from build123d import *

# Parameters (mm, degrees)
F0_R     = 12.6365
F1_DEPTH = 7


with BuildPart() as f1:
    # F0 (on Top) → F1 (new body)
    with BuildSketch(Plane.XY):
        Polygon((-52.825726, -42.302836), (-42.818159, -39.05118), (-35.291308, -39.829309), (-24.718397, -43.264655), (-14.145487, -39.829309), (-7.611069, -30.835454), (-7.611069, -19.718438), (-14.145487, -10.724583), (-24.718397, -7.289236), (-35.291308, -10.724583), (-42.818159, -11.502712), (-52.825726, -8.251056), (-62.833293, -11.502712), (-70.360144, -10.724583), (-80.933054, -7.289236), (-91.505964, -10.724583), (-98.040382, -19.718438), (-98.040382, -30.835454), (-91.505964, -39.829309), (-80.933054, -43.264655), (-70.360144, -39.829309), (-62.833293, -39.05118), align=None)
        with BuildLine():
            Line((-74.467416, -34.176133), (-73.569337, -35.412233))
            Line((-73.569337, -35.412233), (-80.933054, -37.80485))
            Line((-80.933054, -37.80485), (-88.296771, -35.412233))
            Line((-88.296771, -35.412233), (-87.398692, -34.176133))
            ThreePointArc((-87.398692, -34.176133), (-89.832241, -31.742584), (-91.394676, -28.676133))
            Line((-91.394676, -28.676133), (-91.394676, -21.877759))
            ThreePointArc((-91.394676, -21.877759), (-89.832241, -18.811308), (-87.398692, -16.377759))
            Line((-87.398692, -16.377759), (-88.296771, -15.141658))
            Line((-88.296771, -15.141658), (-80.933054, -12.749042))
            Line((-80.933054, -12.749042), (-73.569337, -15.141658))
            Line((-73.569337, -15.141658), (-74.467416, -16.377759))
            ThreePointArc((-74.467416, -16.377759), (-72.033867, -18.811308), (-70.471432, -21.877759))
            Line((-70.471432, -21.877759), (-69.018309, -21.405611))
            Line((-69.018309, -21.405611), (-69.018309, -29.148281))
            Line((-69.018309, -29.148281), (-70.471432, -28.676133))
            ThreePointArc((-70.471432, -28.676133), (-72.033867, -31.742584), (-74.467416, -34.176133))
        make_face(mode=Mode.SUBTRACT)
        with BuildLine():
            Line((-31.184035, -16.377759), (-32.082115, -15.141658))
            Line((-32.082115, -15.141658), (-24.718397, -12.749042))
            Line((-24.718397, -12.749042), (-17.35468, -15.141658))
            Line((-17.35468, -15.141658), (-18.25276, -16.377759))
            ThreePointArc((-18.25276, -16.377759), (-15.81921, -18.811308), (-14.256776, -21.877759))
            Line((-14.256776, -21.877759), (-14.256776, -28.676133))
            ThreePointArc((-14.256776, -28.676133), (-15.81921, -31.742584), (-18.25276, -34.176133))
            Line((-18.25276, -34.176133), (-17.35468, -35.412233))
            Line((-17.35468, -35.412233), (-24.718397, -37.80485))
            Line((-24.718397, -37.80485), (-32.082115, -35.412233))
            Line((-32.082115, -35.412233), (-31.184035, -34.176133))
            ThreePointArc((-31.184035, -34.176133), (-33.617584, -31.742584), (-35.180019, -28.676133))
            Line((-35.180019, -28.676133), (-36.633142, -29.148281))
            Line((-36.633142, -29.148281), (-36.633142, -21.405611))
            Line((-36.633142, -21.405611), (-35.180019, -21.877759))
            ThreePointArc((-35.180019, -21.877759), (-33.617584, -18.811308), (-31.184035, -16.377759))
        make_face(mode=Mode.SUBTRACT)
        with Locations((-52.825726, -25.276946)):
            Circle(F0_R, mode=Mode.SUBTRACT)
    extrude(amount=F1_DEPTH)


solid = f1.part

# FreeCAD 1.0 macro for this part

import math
import FreeCAD as App
import Part
import Sketcher
from FreeCAD import Vector
Q = App.Units.Quantity


def add_polygon(sketch, points):
    """Adds a closed chain of lines whose ends are joined by coincident constraints."""
    first, n = sketch.GeometryCount, len(points)
    for a, b in zip(points, points[1:] + points[:1]):
        sketch.addGeometry(Part.LineSegment(App.Vector(*a, 0), App.Vector(*b, 0)), False)
    for i in range(n):
        sketch.addConstraint(Sketcher.Constraint("Coincident", first + i, 2, first + (i + 1) % n, 1))

doc = App.newDocument("Part")
body = doc.addObject("PartDesign::Body", "Body")

# Sketch on XY plane
sketch1 = body.newObject("Sketcher::SketchObject", "Sketch")
sketch1.AttachmentSupport = (doc.getObject("XY_Plane"), [""])
sketch1.MapMode = "FlatFace"
add_polygon(sketch1, [(-52.825726, -42.302836), (-42.818159, -39.05118), (-35.291308, -39.829309), (-24.718397, -43.264655), (-14.145487, -39.829309), (-7.611069, -30.835454), (-7.611069, -19.718438), (-14.145487, -10.724583), (-24.718397, -7.289236), (-35.291308, -10.724583), (-42.818159, -11.502712), (-52.825726, -8.251056), (-62.833293, -11.502712), (-70.360144, -10.724583), (-80.933054, -7.289236), (-91.505964, -10.724583), (-98.040382, -19.718438), (-98.040382, -30.835454), (-91.505964, -39.829309), (-80.933054, -43.264655), (-70.360144, -39.829309), (-62.833293, -39.05118)])  # lines 0-21
sketch1.addGeometry(Part.ArcOfCircle(Part.Circle(Vector(-80.933055, -25.276945, 0), Vector(0, 0, 1), 11.000002), math.radians(-53.999998), math.radians(-18.000003)), False)  # 22
sketch1.addGeometry(Part.LineSegment(Vector(-74.467416, -34.176133, 0), Vector(-73.569337, -35.412233, 0)), False)  # 23
sketch1.addGeometry(Part.LineSegment(Vector(-73.569337, -35.412233, 0), Vector(-80.933054, -37.80485, 0)), False)  # 24
sketch1.addGeometry(Part.LineSegment(Vector(-80.933054, -37.80485, 0), Vector(-88.296771, -35.412233, 0)), False)  # 25
sketch1.addGeometry(Part.LineSegment(Vector(-88.296771, -35.412233, 0), Vector(-87.398692, -34.176133, 0)), False)  # 26
sketch1.addGeometry(Part.ArcOfCircle(Part.Circle(Vector(-80.933053, -25.276945, 0), Vector(0, 0, 1), 11.000002), math.radians(-161.999997), math.radians(-126.000002)), False)  # 27
sketch1.addGeometry(Part.LineSegment(Vector(-91.394676, -28.676133, 0), Vector(-91.394676, -21.877759, 0)), False)  # 28
sketch1.addGeometry(Part.ArcOfCircle(Part.Circle(Vector(-80.933053, -25.276947, 0), Vector(0, 0, 1), 11.000002), math.radians(126.000002), math.radians(161.999997)), False)  # 29
sketch1.addGeometry(Part.LineSegment(Vector(-87.398692, -16.377759, 0), Vector(-88.296771, -15.141658, 0)), False)  # 30
sketch1.addGeometry(Part.LineSegment(Vector(-88.296771, -15.141658, 0), Vector(-80.933054, -12.749042, 0)), False)  # 31
sketch1.addGeometry(Part.LineSegment(Vector(-80.933054, -12.749042, 0), Vector(-73.569337, -15.141658, 0)), False)  # 32
sketch1.addGeometry(Part.LineSegment(Vector(-73.569337, -15.141658, 0), Vector(-74.467416, -16.377759, 0)), False)  # 33
sketch1.addGeometry(Part.ArcOfCircle(Part.Circle(Vector(-80.933055, -25.276947, 0), Vector(0, 0, 1), 11.000002), math.radians(18.000003), math.radians(53.999998)), False)  # 34
sketch1.addGeometry(Part.LineSegment(Vector(-70.471432, -21.877759, 0), Vector(-69.018309, -21.405611, 0)), False)  # 35
sketch1.addGeometry(Part.LineSegment(Vector(-69.018309, -21.405611, 0), Vector(-69.018309, -29.148281, 0)), False)  # 36
sketch1.addGeometry(Part.LineSegment(Vector(-69.018309, -29.148281, 0), Vector(-70.471432, -28.676133, 0)), False)  # 37
sketch1.addGeometry(Part.ArcOfCircle(Part.Circle(Vector(-24.718396, -25.276947, 0), Vector(0, 0, 1), 11.000002), math.radians(126.000002), math.radians(161.999997)), False)  # 38
sketch1.addGeometry(Part.LineSegment(Vector(-31.184035, -16.377759, 0), Vector(-32.082115, -15.141658, 0)), False)  # 39
sketch1.addGeometry(Part.LineSegment(Vector(-32.082115, -15.141658, 0), Vector(-24.718397, -12.749042, 0)), False)  # 40
sketch1.addGeometry(Part.LineSegment(Vector(-24.718397, -12.749042, 0), Vector(-17.35468, -15.141658, 0)), False)  # 41
sketch1.addGeometry(Part.LineSegment(Vector(-17.35468, -15.141658, 0), Vector(-18.25276, -16.377759, 0)), False)  # 42
sketch1.addGeometry(Part.ArcOfCircle(Part.Circle(Vector(-24.718386, -25.276937, 0), Vector(0, 0, 1), 10.999986), math.radians(17.999977), math.radians(54.000025)), False)  # 43
sketch1.addGeometry(Part.LineSegment(Vector(-14.256776, -21.877759, 0), Vector(-14.256776, -28.676133, 0)), False)  # 44
sketch1.addGeometry(Part.ArcOfCircle(Part.Circle(Vector(-24.718386, -25.276955, 0), Vector(0, 0, 1), 10.999986), math.radians(-54.000025), math.radians(-17.999977)), False)  # 45
sketch1.addGeometry(Part.LineSegment(Vector(-18.25276, -34.176133, 0), Vector(-17.35468, -35.412233, 0)), False)  # 46
sketch1.addGeometry(Part.LineSegment(Vector(-17.35468, -35.412233, 0), Vector(-24.718397, -37.80485, 0)), False)  # 47
sketch1.addGeometry(Part.LineSegment(Vector(-24.718397, -37.80485, 0), Vector(-32.082115, -35.412233, 0)), False)  # 48
sketch1.addGeometry(Part.LineSegment(Vector(-32.082115, -35.412233, 0), Vector(-31.184035, -34.176133, 0)), False)  # 49
sketch1.addGeometry(Part.ArcOfCircle(Part.Circle(Vector(-24.718396, -25.276945, 0), Vector(0, 0, 1), 11.000002), math.radians(-161.999997), math.radians(-126.000002)), False)  # 50
sketch1.addGeometry(Part.LineSegment(Vector(-35.180019, -28.676133, 0), Vector(-36.633142, -29.148281, 0)), False)  # 51
sketch1.addGeometry(Part.LineSegment(Vector(-36.633142, -29.148281, 0), Vector(-36.633142, -21.405611, 0)), False)  # 52
sketch1.addGeometry(Part.LineSegment(Vector(-36.633142, -21.405611, 0), Vector(-35.180019, -21.877759, 0)), False)  # 53
sketch1.addGeometry(Part.Circle(Vector(-52.825726, -25.276946, 0), Vector(0, 0, 1), 12.6365), False)  # 54
sketch1.addConstraint(Sketcher.Constraint("Coincident", 22, 1, 23, 1))
sketch1.addConstraint(Sketcher.Constraint("Coincident", 23, 2, 24, 1))
sketch1.addConstraint(Sketcher.Constraint("Coincident", 24, 2, 25, 1))
sketch1.addConstraint(Sketcher.Constraint("Coincident", 25, 2, 26, 1))
sketch1.addConstraint(Sketcher.Constraint("Coincident", 26, 2, 27, 2))
sketch1.addConstraint(Sketcher.Constraint("Coincident", 27, 1, 28, 1))
sketch1.addConstraint(Sketcher.Constraint("Coincident", 28, 2, 29, 2))
sketch1.addConstraint(Sketcher.Constraint("Coincident", 29, 1, 30, 1))
sketch1.addConstraint(Sketcher.Constraint("Coincident", 30, 2, 31, 1))
sketch1.addConstraint(Sketcher.Constraint("Coincident", 31, 2, 32, 1))
sketch1.addConstraint(Sketcher.Constraint("Coincident", 32, 2, 33, 1))
sketch1.addConstraint(Sketcher.Constraint("Coincident", 33, 2, 34, 2))
sketch1.addConstraint(Sketcher.Constraint("Coincident", 34, 1, 35, 1))
sketch1.addConstraint(Sketcher.Constraint("Coincident", 35, 2, 36, 1))
sketch1.addConstraint(Sketcher.Constraint("Coincident", 36, 2, 37, 1))
sketch1.addConstraint(Sketcher.Constraint("Coincident", 37, 2, 22, 2))
sketch1.addConstraint(Sketcher.Constraint("Coincident", 38, 1, 39, 1))
sketch1.addConstraint(Sketcher.Constraint("Coincident", 39, 2, 40, 1))
sketch1.addConstraint(Sketcher.Constraint("Coincident", 40, 2, 41, 1))
sketch1.addConstraint(Sketcher.Constraint("Coincident", 41, 2, 42, 1))
sketch1.addConstraint(Sketcher.Constraint("Coincident", 42, 2, 43, 2))
sketch1.addConstraint(Sketcher.Constraint("Coincident", 43, 1, 44, 1))
sketch1.addConstraint(Sketcher.Constraint("Coincident", 44, 2, 45, 2))
sketch1.addConstraint(Sketcher.Constraint("Coincident", 45, 1, 46, 1))
sketch1.addConstraint(Sketcher.Constraint("Coincident", 46, 2, 47, 1))
sketch1.addConstraint(Sketcher.Constraint("Coincident", 47, 2, 48, 1))
sketch1.addConstraint(Sketcher.Constraint("Coincident", 48, 2, 49, 1))
sketch1.addConstraint(Sketcher.Constraint("Coincident", 49, 2, 50, 2))
sketch1.addConstraint(Sketcher.Constraint("Coincident", 50, 1, 51, 1))
sketch1.addConstraint(Sketcher.Constraint("Coincident", 51, 2, 52, 1))
sketch1.addConstraint(Sketcher.Constraint("Coincident", 52, 2, 53, 1))
sketch1.addConstraint(Sketcher.Constraint("Coincident", 53, 2, 38, 2))
sketch1.addConstraint(Sketcher.Constraint("Vertical", 5))
sketch1.addConstraint(Sketcher.Constraint("Vertical", 16))
sketch1.addConstraint(Sketcher.Constraint("Vertical", 28))
sketch1.addConstraint(Sketcher.Constraint("Vertical", 36))
sketch1.addConstraint(Sketcher.Constraint("Vertical", 44))
sketch1.addConstraint(Sketcher.Constraint("Vertical", 52))
sketch1.addConstraint(Sketcher.Constraint("Coincident", 27, 3, 22, 3))
sketch1.addConstraint(Sketcher.Constraint("Coincident", 29, 3, 22, 3))
sketch1.addConstraint(Sketcher.Constraint("Coincident", 34, 3, 22, 3))
sketch1.addConstraint(Sketcher.Constraint("Coincident", 50, 3, 38, 3))
sketch1.addConstraint(Sketcher.Constraint("Equal", 22, 27))
sketch1.addConstraint(Sketcher.Constraint("Equal", 27, 29))
sketch1.addConstraint(Sketcher.Constraint("Equal", 29, 34))
sketch1.addConstraint(Sketcher.Constraint("Equal", 34, 38))
sketch1.addConstraint(Sketcher.Constraint("Equal", 43, 45))
sketch1.addConstraint(Sketcher.Constraint("Equal", 38, 50))
sketch1.addConstraint(Sketcher.Constraint("Parallel", 0, 3))
sketch1.addConstraint(Sketcher.Constraint("Parallel", 2, 7))
sketch1.addConstraint(Sketcher.Constraint("Parallel", 3, 8))
sketch1.addConstraint(Sketcher.Constraint("Parallel", 7, 10))
sketch1.addConstraint(Sketcher.Constraint("Parallel", 8, 11))
sketch1.addConstraint(Sketcher.Constraint("Parallel", 1, 12))
sketch1.addConstraint(Sketcher.Constraint("Parallel", 10, 13))
sketch1.addConstraint(Sketcher.Constraint("Parallel", 11, 14))
sketch1.addConstraint(Sketcher.Constraint("Parallel", 4, 15))
sketch1.addConstraint(Sketcher.Constraint("Parallel", 6, 17))
sketch1.addConstraint(Sketcher.Constraint("Parallel", 13, 18))
sketch1.addConstraint(Sketcher.Constraint("Parallel", 14, 19))
sketch1.addConstraint(Sketcher.Constraint("Parallel", 9, 20))
sketch1.addConstraint(Sketcher.Constraint("Parallel", 18, 21))
sketch1.addConstraint(Sketcher.Constraint("Parallel", 17, 23))
sketch1.addConstraint(Sketcher.Constraint("Parallel", 19, 24))
sketch1.addConstraint(Sketcher.Constraint("Parallel", 21, 25))
sketch1.addConstraint(Sketcher.Constraint("Parallel", 15, 26))
sketch1.addConstraint(Sketcher.Constraint("Parallel", 23, 30))
sketch1.addConstraint(Sketcher.Constraint("Parallel", 24, 31))
sketch1.addConstraint(Sketcher.Constraint("Parallel", 25, 32))
sketch1.addConstraint(Sketcher.Constraint("Parallel", 26, 33))
sketch1.addConstraint(Sketcher.Constraint("Parallel", 31, 35))
sketch1.addConstraint(Sketcher.Constraint("Parallel", 32, 37))
sketch1.addConstraint(Sketcher.Constraint("Parallel", 30, 39))
sketch1.addConstraint(Sketcher.Constraint("Parallel", 35, 40))
sketch1.addConstraint(Sketcher.Constraint("Parallel", 37, 41))
sketch1.addConstraint(Sketcher.Constraint("Parallel", 33, 42))
sketch1.addConstraint(Sketcher.Constraint("Parallel", 39, 46))
sketch1.addConstraint(Sketcher.Constraint("Parallel", 40, 47))
sketch1.addConstraint(Sketcher.Constraint("Parallel", 41, 48))
sketch1.addConstraint(Sketcher.Constraint("Parallel", 42, 49))
sketch1.addConstraint(Sketcher.Constraint("Parallel", 47, 51))
sketch1.addConstraint(Sketcher.Constraint("Parallel", 48, 53))
sketch1.addConstraint(Sketcher.Constraint("Horizontal", 34, 3, 38, 3))
sketch1.addConstraint(Sketcher.Constraint("Horizontal", 50, 3, 54, 3))
sketch1.addConstraint(Sketcher.Constraint("Horizontal", 1, 2, 3, 2))
sketch1.addConstraint(Sketcher.Constraint("Horizontal", 6, 2, 8, 2))
sketch1.addConstraint(Sketcher.Constraint("Horizontal", 9, 2, 11, 2))
sketch1.addConstraint(Sketcher.Constraint("Horizontal", 8, 2, 12, 2))
sketch1.addConstraint(Sketcher.Constraint("Horizontal", 7, 2, 13, 2))
sketch1.addConstraint(Sketcher.Constraint("Horizontal", 12, 2, 14, 2))
sketch1.addConstraint(Sketcher.Constraint("Horizontal", 5, 2, 15, 2))
sketch1.addConstraint(Sketcher.Constraint("Horizontal", 4, 2, 16, 2))
sketch1.addConstraint(Sketcher.Constraint("Horizontal", 3, 2, 17, 2))
sketch1.addConstraint(Sketcher.Constraint("Horizontal", 2, 2, 18, 2))
sketch1.addConstraint(Sketcher.Constraint("Horizontal", 17, 2, 19, 2))
sketch1.addConstraint(Sketcher.Constraint("Horizontal", 0, 2, 20, 2))
sketch1.addConstraint(Sketcher.Constraint("Horizontal", 23, 2, 25, 2))
sketch1.addConstraint(Sketcher.Constraint("Horizontal", 22, 1, 26, 2))
sketch1.addConstraint(Sketcher.Constraint("Horizontal", 30, 2, 32, 2))
sketch1.addConstraint(Sketcher.Constraint("Horizontal", 29, 1, 33, 2))
sketch1.addConstraint(Sketcher.Constraint("Horizontal", 28, 2, 34, 1))
sketch1.addConstraint(Sketcher.Constraint("Horizontal", 27, 1, 37, 2))
sketch1.addConstraint(Sketcher.Constraint("Horizontal", 33, 2, 38, 1))
sketch1.addConstraint(Sketcher.Constraint("Horizontal", 32, 2, 39, 2))
sketch1.addConstraint(Sketcher.Constraint("Horizontal", 31, 2, 40, 2))
sketch1.addConstraint(Sketcher.Constraint("Horizontal", 39, 2, 41, 2))
sketch1.addConstraint(Sketcher.Constraint("Horizontal", 38, 1, 42, 2))
sketch1.addConstraint(Sketcher.Constraint("Horizontal", 34, 1, 43, 1))
sketch1.addConstraint(Sketcher.Constraint("Horizontal", 37, 2, 44, 2))
sketch1.addConstraint(Sketcher.Constraint("Horizontal", 26, 2, 45, 1))
sketch1.addConstraint(Sketcher.Constraint("Horizontal", 25, 2, 46, 2))
sketch1.addConstraint(Sketcher.Constraint("Horizontal", 24, 2, 47, 2))
sketch1.addConstraint(Sketcher.Constraint("Horizontal", 46, 2, 48, 2))
sketch1.addConstraint(Sketcher.Constraint("Horizontal", 45, 1, 49, 2))
sketch1.addConstraint(Sketcher.Constraint("Horizontal", 44, 2, 50, 1))
sketch1.addConstraint(Sketcher.Constraint("Horizontal", 36, 2, 51, 2))
sketch1.addConstraint(Sketcher.Constraint("Horizontal", 35, 2, 52, 2))
sketch1.addConstraint(Sketcher.Constraint("Horizontal", 43, 1, 53, 2))
sketch1.addConstraint(Sketcher.Constraint("Vertical", 50, 3, 2, 2))
sketch1.addConstraint(Sketcher.Constraint("Vertical", 3, 2, 6, 2))
sketch1.addConstraint(Sketcher.Constraint("Vertical", 2, 2, 7, 2))
sketch1.addConstraint(Sketcher.Constraint("Vertical", 0, 2, 9, 2))
sketch1.addConstraint(Sketcher.Constraint("Vertical", 54, 3, 10, 2))
sketch1.addConstraint(Sketcher.Constraint("Vertical", 34, 3, 13, 2))
sketch1.addConstraint(Sketcher.Constraint("Vertical", 14, 2, 17, 2))
sketch1.addConstraint(Sketcher.Constraint("Vertical", 11, 2, 20, 2))
sketch1.addConstraint(Sketcher.Constraint("Vertical", 26, 2, 29, 1))
sketch1.addConstraint(Sketcher.Constraint("Vertical", 25, 2, 30, 2))
sketch1.addConstraint(Sketcher.Constraint("Equal", 3, 4))
sketch1.addConstraint(Sketcher.Constraint("Equal", 33, 35))
sketch1.addConstraint(Sketcher.Constraint("Radius", 22, Q("11.000002 mm")))
sketch1.addConstraint(Sketcher.Constraint("Angle", 0, Q("18.000002 deg")))
sketch1.addConstraint(Sketcher.Constraint("Angle", 4, Q("54.000001 deg")))
sketch1.addConstraint(Sketcher.Constraint("Diameter", 54, Q("25.273 mm")))
sketch1.addConstraint(Sketcher.Constraint("Radius", 43, Q("10.999986 mm")))
sketch1.addConstraint(Sketcher.Constraint("DistanceY", 36, 2, 36, 1, Q("7.74267 mm")))
sketch1.addConstraint(Sketcher.Constraint("Distance", 0, Q("10.522579 mm")))
sketch1.addConstraint(Sketcher.Constraint("Distance", 24, Q("7.74267 mm")))
sketch1.addConstraint(Sketcher.Constraint("DistanceY", 5, 1, 5, 2, Q("11.117016 mm")))
sketch1.addConstraint(Sketcher.Constraint("DistanceY", 28, 1, 28, 2, Q("6.798374 mm")))
sketch1.addConstraint(Sketcher.Constraint("DistanceX", 0, 2, -1, 1, Q("42.818159 mm")))
sketch1.addConstraint(Sketcher.Constraint("DistanceY", 0, 2, -1, 1, Q("39.05118 mm")))
sketch1.addConstraint(Sketcher.Constraint("DistanceY", 1, 2, -1, 1, Q("39.829309 mm")))
sketch1.addConstraint(Sketcher.Constraint("DistanceX", 4, 2, -1, 1, Q("7.611069 mm")))
sketch1.addConstraint(Sketcher.Constraint("DistanceY", 24, 2, -1, 1, Q("37.80485 mm")))
sketch1.addConstraint(Sketcher.Constraint("DistanceX", 25, 2, -1, 1, Q("88.296771 mm")))
sketch1.addConstraint(Sketcher.Constraint("DistanceX", 43, 3, -1, 1, Q("24.718386 mm")))
pad1 = body.newObject("PartDesign::Pad", "Pad")
pad1.Profile = sketch1
pad1.Length = 7

doc.recompute()
